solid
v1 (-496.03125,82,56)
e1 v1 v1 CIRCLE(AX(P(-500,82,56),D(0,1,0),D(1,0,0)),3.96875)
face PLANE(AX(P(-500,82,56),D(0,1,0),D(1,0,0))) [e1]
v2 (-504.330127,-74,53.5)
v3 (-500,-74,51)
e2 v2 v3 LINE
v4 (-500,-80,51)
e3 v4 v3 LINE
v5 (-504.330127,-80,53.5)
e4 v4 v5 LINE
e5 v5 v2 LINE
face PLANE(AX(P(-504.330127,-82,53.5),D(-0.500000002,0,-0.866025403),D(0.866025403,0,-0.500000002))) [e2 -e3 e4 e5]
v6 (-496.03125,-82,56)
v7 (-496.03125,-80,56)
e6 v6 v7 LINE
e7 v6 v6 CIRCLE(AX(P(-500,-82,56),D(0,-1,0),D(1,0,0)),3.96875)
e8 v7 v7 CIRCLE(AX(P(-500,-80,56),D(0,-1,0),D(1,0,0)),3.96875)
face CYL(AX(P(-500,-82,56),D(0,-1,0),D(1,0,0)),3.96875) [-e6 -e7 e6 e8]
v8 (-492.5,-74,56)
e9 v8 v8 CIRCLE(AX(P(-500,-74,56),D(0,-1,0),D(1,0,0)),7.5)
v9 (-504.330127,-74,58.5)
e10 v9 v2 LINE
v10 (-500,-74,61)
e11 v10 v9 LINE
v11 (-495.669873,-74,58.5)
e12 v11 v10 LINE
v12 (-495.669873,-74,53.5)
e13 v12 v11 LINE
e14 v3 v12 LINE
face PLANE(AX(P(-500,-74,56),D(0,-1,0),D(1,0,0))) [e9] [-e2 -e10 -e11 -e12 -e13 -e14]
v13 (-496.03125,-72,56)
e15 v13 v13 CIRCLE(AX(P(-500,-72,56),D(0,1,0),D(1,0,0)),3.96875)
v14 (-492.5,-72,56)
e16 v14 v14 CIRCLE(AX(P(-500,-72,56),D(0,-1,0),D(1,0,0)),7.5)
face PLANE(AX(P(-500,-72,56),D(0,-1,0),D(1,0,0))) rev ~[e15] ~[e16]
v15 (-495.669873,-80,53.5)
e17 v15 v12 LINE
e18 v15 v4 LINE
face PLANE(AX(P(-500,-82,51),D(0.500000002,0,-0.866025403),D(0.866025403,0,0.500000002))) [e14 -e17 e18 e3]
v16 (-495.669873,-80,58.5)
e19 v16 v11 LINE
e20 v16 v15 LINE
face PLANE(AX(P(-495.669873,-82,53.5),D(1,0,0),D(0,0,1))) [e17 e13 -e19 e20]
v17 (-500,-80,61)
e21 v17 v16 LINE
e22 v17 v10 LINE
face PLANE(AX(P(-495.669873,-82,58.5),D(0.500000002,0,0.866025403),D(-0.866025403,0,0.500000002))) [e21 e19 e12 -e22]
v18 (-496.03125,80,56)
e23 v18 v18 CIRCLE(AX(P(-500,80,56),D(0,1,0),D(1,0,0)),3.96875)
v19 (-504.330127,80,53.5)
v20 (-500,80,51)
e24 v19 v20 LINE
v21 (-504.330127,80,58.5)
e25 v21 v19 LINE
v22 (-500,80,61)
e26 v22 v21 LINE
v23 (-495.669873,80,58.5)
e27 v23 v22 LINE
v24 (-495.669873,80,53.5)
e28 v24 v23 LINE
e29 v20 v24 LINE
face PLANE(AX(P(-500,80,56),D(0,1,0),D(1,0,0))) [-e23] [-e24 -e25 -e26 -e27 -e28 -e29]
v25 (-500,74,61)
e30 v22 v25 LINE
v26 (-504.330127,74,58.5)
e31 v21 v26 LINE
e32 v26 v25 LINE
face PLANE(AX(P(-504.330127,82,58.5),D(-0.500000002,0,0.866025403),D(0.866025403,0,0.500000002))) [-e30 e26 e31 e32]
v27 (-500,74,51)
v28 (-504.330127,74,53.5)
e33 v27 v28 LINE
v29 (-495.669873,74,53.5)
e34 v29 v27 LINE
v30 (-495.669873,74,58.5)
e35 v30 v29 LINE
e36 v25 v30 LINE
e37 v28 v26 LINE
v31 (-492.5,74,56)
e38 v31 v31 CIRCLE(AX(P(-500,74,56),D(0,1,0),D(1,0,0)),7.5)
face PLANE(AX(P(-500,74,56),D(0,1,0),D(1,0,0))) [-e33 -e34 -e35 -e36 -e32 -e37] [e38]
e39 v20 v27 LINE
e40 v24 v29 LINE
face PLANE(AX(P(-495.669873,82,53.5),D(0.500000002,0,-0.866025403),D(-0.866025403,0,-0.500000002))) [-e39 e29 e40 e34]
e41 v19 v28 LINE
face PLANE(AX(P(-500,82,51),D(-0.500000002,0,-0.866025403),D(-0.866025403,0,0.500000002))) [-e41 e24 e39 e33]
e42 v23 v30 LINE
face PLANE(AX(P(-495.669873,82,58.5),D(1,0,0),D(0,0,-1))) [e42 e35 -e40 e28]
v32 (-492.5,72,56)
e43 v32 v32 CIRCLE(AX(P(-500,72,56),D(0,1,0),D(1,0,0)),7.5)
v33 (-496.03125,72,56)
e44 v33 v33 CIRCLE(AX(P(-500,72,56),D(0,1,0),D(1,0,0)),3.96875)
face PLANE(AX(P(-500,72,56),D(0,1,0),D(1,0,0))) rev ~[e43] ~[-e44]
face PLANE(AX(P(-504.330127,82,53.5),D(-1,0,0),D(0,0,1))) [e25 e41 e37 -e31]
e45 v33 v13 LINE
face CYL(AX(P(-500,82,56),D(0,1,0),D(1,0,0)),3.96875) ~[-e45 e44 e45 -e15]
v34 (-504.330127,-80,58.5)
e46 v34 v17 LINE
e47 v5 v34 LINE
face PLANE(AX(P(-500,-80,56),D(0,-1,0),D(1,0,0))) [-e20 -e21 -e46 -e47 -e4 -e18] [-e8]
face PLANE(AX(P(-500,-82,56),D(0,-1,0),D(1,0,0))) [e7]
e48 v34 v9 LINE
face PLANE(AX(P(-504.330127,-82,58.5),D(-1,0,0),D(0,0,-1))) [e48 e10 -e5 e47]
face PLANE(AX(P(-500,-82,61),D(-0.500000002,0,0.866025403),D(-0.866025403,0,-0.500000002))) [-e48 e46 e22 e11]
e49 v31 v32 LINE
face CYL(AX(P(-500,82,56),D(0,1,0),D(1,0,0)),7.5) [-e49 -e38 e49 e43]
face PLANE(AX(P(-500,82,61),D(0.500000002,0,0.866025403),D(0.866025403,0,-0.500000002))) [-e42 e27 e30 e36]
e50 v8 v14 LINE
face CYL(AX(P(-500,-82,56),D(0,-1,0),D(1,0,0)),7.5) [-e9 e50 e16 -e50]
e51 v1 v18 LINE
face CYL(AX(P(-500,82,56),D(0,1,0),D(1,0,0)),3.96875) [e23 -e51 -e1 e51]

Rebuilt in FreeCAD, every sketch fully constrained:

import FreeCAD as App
import Part
import Sketcher
from FreeCAD import Vector
Q = App.Units.Quantity


def add_polygon(sketch, points):
    """Adds a closed chain of lines whose ends are joined by coincident constraints."""
    first, n = sketch.GeometryCount, len(points)
    for a, b in zip(points, points[1:] + points[:1]):
        sketch.addGeometry(Part.LineSegment(App.Vector(*a, 0), App.Vector(*b, 0)), False)
    for i in range(n):
        sketch.addConstraint(Sketcher.Constraint("Coincident", first + i, 2, first + (i + 1) % n, 1))

doc = App.newDocument("Part")
body = doc.addObject("PartDesign::Body", "Body")

sketch1 = body.newObject("Sketcher::SketchObject", "Sketch")
sketch1.AttachmentSupport = (doc.getObject("XZ_Plane"), [""])
sketch1.MapMode = "FlatFace"
sketch1.AttachmentOffset = App.Placement(Vector(0, 0, -82), App.Rotation())
sketch1.addGeometry(Part.Circle(Vector(500, 56, 0), Vector(0, 0, 1), 4), False)
sketch1.addConstraint([
    Sketcher.Constraint("DistanceX", -1, 1, 0, 3, Q("500 mm")),
    Sketcher.Constraint("DistanceY", -1, 1, 0, 3, Q("56 mm")),
    Sketcher.Constraint("Diameter", 0, Q("7.9375 mm")),
])
pad1 = body.newObject("PartDesign::Pad", "Pad")
pad1.Profile = sketch1
pad1.Length = 164

sketch2 = body.newObject("Sketcher::SketchObject", "Sketch001")
sketch2.AttachmentSupport = (doc.getObject("XZ_Plane"), [""])
sketch2.MapMode = "FlatFace"
sketch2.AttachmentOffset = App.Placement(Vector(0, 0, -82), App.Rotation())
sketch2.addGeometry(Part.Circle(Vector(500, 56, 0), Vector(0, 0, 1), 8), False)
sketch2.addConstraint([
    Sketcher.Constraint("Diameter", 0, Q("15 mm")),
    Sketcher.Constraint("DistanceX", -1, 1, 0, 3, Q("500 mm")),
    Sketcher.Constraint("DistanceY", -1, 1, 0, 3, Q("56 mm")),
])
pad2 = body.newObject("PartDesign::Pad", "Pad001")
pad2.Profile = sketch2
pad2.Length = 10

sketch3 = body.newObject("Sketcher::SketchObject", "Sketch002")
sketch3.AttachmentSupport = (doc.getObject("XZ_Plane"), [""])
sketch3.MapMode = "FlatFace"
sketch3.AttachmentOffset = App.Placement(Vector(0, 0, -82), App.Rotation())
sketch3.addGeometry(Part.Circle(Vector(500, 56, 0), Vector(0, 0, 1), 7.5), False)
add_polygon(sketch3, [(495.7, 53.5), (500, 51), (504.3, 53.5), (504.3, 58.5), (500, 61), (495.7, 58.5)])
sketch3.addConstraint([
    Sketcher.Constraint("Vertical", 3),
    Sketcher.Constraint("Vertical", 6),
    Sketcher.Constraint("Parallel", 1, 4),
    Sketcher.Constraint("Parallel", 2, 5),
    Sketcher.Constraint("Horizontal", 3, 2, 5, 2),
    Sketcher.Constraint("Horizontal", 2, 2, 6, 2),
    Sketcher.Constraint("Vertical", 0, 3, 1, 2),
    Sketcher.Constraint("Vertical", 1, 2, 4, 2),
    Sketcher.Constraint("Diameter", 0, Q("15 mm")),
    Sketcher.Constraint("DistanceY", 3, 1, 3, 2, Q("5 mm")),
    Sketcher.Constraint("Angle", 1, Q("-30 deg")),
    Sketcher.Constraint("Distance", 1, Q("5 mm")),
    Sketcher.Constraint("DistanceX", -1, 1, 0, 3, Q("500 mm")),
    Sketcher.Constraint("DistanceY", -1, 1, 0, 3, Q("56 mm")),
    Sketcher.Constraint("DistanceY", -1, 1, 1, 2, Q("51 mm")),
])
pocket1 = body.newObject("PartDesign::Pocket", "Pocket")
pocket1.Profile = sketch3
pocket1.Length = 8
pocket1.Reversed = True

sketch4 = body.newObject("Sketcher::SketchObject", "Sketch003")
sketch4.AttachmentSupport = (doc.getObject("XZ_Plane"), [""])
sketch4.MapMode = "FlatFace"
sketch4.AttachmentOffset = App.Placement(Vector(0, 0, -82), App.Rotation())
sketch4.addGeometry([
    Part.Circle(Vector(500, 56, 0), Vector(0, 0, 1), 7.5),
    Part.Circle(Vector(500, 56, 0), Vector(0, 0, 1), 4),
], False)
sketch4.addConstraint([
    Sketcher.Constraint("Coincident", 1, 3, 0, 3),
    Sketcher.Constraint("Diameter", 0, Q("15 mm")),
    Sketcher.Constraint("DistanceX", -1, 1, 0, 3, Q("500 mm")),
    Sketcher.Constraint("DistanceY", -1, 1, 0, 3, Q("56 mm")),
    Sketcher.Constraint("Diameter", 1, Q("7.9375 mm")),
])
pocket2 = body.newObject("PartDesign::Pocket", "Pocket001")
pocket2.Profile = sketch4
pocket2.Length = 2
pocket2.Reversed = True

sketch5 = body.newObject("Sketcher::SketchObject", "Sketch004")
sketch5.AttachmentSupport = (doc.getObject("XZ_Plane"), [""])
sketch5.MapMode = "FlatFace"
sketch5.AttachmentOffset = App.Placement(Vector(0, 0, 82), App.Rotation())
sketch5.addGeometry(Part.Circle(Vector(500, 56, 0), Vector(0, 0, 1), 8), False)
sketch5.addConstraint([
    Sketcher.Constraint("Diameter", 0, Q("15 mm")),
    Sketcher.Constraint("DistanceX", -1, 1, 0, 3, Q("500 mm")),
    Sketcher.Constraint("DistanceY", -1, 1, 0, 3, Q("56 mm")),
])
pad3 = body.newObject("PartDesign::Pad", "Pad002")
pad3.Profile = sketch5
pad3.Length = 10
pad3.Reversed = True

sketch6 = body.newObject("Sketcher::SketchObject", "Sketch005")
sketch6.AttachmentSupport = (doc.getObject("XZ_Plane"), [""])
sketch6.MapMode = "FlatFace"
sketch6.AttachmentOffset = App.Placement(Vector(0, 0, 82), App.Rotation())
sketch6.addGeometry(Part.Circle(Vector(500, 56, 0), Vector(0, 0, 1), 7.5), False)
add_polygon(sketch6, [(495.7, 58.5), (500, 61), (504.3, 58.5), (504.3, 53.5), (500, 51), (495.7, 53.5)])
sketch6.addConstraint([
    Sketcher.Constraint("Vertical", 3),
    Sketcher.Constraint("Vertical", 6),
    Sketcher.Constraint("Parallel", 1, 4),
    Sketcher.Constraint("Parallel", 2, 5),
    Sketcher.Constraint("Horizontal", 3, 2, 5, 2),
    Sketcher.Constraint("Horizontal", 2, 2, 6, 2),
    Sketcher.Constraint("Vertical", 0, 3, 1, 2),
    Sketcher.Constraint("Vertical", 1, 2, 4, 2),
    Sketcher.Constraint("Diameter", 0, Q("15 mm")),
    Sketcher.Constraint("DistanceY", 3, 2, 3, 1, Q("5 mm")),
    Sketcher.Constraint("Angle", 1, Q("30 deg")),
    Sketcher.Constraint("Distance", 1, Q("5 mm")),
    Sketcher.Constraint("DistanceX", -1, 1, 0, 3, Q("500 mm")),
    Sketcher.Constraint("DistanceY", -1, 1, 0, 3, Q("56 mm")),
    Sketcher.Constraint("DistanceY", -1, 1, 1, 2, Q("61 mm")),
])
pocket3 = body.newObject("PartDesign::Pocket", "Pocket002")
pocket3.Profile = sketch6
pocket3.Length = 8

sketch7 = body.newObject("Sketcher::SketchObject", "Sketch006")
sketch7.AttachmentSupport = (doc.getObject("XZ_Plane"), [""])
sketch7.MapMode = "FlatFace"
sketch7.AttachmentOffset = App.Placement(Vector(0, 0, 82), App.Rotation())
sketch7.addGeometry([
    Part.Circle(Vector(500, 56, 0), Vector(0, 0, 1), 7.5),
    Part.Circle(Vector(500, 56, 0), Vector(0, 0, 1), 4),
], False)
sketch7.addConstraint([
    Sketcher.Constraint("Coincident", 1, 3, 0, 3),
    Sketcher.Constraint("Diameter", 0, Q("15 mm")),
    Sketcher.Constraint("DistanceX", -1, 1, 0, 3, Q("500 mm")),
    Sketcher.Constraint("DistanceY", -1, 1, 0, 3, Q("56 mm")),
    Sketcher.Constraint("Diameter", 1, Q("7.9375 mm")),
])
pocket4 = body.newObject("PartDesign::Pocket", "Pocket003")
pocket4.Profile = sketch7
pocket4.Length = 2
body2 = doc.addObject("PartDesign::Body", "Body001")
doc.recompute()

body.Placement = App.Placement(Vector(-1000, 0, 0), App.Rotation(Vector(0, 0, 1), 0))
boolean = body2.newObject("PartDesign::Boolean", "Boolean")
boolean.Type = "Fuse"
boolean.addObjects([body])

doc.recompute()
